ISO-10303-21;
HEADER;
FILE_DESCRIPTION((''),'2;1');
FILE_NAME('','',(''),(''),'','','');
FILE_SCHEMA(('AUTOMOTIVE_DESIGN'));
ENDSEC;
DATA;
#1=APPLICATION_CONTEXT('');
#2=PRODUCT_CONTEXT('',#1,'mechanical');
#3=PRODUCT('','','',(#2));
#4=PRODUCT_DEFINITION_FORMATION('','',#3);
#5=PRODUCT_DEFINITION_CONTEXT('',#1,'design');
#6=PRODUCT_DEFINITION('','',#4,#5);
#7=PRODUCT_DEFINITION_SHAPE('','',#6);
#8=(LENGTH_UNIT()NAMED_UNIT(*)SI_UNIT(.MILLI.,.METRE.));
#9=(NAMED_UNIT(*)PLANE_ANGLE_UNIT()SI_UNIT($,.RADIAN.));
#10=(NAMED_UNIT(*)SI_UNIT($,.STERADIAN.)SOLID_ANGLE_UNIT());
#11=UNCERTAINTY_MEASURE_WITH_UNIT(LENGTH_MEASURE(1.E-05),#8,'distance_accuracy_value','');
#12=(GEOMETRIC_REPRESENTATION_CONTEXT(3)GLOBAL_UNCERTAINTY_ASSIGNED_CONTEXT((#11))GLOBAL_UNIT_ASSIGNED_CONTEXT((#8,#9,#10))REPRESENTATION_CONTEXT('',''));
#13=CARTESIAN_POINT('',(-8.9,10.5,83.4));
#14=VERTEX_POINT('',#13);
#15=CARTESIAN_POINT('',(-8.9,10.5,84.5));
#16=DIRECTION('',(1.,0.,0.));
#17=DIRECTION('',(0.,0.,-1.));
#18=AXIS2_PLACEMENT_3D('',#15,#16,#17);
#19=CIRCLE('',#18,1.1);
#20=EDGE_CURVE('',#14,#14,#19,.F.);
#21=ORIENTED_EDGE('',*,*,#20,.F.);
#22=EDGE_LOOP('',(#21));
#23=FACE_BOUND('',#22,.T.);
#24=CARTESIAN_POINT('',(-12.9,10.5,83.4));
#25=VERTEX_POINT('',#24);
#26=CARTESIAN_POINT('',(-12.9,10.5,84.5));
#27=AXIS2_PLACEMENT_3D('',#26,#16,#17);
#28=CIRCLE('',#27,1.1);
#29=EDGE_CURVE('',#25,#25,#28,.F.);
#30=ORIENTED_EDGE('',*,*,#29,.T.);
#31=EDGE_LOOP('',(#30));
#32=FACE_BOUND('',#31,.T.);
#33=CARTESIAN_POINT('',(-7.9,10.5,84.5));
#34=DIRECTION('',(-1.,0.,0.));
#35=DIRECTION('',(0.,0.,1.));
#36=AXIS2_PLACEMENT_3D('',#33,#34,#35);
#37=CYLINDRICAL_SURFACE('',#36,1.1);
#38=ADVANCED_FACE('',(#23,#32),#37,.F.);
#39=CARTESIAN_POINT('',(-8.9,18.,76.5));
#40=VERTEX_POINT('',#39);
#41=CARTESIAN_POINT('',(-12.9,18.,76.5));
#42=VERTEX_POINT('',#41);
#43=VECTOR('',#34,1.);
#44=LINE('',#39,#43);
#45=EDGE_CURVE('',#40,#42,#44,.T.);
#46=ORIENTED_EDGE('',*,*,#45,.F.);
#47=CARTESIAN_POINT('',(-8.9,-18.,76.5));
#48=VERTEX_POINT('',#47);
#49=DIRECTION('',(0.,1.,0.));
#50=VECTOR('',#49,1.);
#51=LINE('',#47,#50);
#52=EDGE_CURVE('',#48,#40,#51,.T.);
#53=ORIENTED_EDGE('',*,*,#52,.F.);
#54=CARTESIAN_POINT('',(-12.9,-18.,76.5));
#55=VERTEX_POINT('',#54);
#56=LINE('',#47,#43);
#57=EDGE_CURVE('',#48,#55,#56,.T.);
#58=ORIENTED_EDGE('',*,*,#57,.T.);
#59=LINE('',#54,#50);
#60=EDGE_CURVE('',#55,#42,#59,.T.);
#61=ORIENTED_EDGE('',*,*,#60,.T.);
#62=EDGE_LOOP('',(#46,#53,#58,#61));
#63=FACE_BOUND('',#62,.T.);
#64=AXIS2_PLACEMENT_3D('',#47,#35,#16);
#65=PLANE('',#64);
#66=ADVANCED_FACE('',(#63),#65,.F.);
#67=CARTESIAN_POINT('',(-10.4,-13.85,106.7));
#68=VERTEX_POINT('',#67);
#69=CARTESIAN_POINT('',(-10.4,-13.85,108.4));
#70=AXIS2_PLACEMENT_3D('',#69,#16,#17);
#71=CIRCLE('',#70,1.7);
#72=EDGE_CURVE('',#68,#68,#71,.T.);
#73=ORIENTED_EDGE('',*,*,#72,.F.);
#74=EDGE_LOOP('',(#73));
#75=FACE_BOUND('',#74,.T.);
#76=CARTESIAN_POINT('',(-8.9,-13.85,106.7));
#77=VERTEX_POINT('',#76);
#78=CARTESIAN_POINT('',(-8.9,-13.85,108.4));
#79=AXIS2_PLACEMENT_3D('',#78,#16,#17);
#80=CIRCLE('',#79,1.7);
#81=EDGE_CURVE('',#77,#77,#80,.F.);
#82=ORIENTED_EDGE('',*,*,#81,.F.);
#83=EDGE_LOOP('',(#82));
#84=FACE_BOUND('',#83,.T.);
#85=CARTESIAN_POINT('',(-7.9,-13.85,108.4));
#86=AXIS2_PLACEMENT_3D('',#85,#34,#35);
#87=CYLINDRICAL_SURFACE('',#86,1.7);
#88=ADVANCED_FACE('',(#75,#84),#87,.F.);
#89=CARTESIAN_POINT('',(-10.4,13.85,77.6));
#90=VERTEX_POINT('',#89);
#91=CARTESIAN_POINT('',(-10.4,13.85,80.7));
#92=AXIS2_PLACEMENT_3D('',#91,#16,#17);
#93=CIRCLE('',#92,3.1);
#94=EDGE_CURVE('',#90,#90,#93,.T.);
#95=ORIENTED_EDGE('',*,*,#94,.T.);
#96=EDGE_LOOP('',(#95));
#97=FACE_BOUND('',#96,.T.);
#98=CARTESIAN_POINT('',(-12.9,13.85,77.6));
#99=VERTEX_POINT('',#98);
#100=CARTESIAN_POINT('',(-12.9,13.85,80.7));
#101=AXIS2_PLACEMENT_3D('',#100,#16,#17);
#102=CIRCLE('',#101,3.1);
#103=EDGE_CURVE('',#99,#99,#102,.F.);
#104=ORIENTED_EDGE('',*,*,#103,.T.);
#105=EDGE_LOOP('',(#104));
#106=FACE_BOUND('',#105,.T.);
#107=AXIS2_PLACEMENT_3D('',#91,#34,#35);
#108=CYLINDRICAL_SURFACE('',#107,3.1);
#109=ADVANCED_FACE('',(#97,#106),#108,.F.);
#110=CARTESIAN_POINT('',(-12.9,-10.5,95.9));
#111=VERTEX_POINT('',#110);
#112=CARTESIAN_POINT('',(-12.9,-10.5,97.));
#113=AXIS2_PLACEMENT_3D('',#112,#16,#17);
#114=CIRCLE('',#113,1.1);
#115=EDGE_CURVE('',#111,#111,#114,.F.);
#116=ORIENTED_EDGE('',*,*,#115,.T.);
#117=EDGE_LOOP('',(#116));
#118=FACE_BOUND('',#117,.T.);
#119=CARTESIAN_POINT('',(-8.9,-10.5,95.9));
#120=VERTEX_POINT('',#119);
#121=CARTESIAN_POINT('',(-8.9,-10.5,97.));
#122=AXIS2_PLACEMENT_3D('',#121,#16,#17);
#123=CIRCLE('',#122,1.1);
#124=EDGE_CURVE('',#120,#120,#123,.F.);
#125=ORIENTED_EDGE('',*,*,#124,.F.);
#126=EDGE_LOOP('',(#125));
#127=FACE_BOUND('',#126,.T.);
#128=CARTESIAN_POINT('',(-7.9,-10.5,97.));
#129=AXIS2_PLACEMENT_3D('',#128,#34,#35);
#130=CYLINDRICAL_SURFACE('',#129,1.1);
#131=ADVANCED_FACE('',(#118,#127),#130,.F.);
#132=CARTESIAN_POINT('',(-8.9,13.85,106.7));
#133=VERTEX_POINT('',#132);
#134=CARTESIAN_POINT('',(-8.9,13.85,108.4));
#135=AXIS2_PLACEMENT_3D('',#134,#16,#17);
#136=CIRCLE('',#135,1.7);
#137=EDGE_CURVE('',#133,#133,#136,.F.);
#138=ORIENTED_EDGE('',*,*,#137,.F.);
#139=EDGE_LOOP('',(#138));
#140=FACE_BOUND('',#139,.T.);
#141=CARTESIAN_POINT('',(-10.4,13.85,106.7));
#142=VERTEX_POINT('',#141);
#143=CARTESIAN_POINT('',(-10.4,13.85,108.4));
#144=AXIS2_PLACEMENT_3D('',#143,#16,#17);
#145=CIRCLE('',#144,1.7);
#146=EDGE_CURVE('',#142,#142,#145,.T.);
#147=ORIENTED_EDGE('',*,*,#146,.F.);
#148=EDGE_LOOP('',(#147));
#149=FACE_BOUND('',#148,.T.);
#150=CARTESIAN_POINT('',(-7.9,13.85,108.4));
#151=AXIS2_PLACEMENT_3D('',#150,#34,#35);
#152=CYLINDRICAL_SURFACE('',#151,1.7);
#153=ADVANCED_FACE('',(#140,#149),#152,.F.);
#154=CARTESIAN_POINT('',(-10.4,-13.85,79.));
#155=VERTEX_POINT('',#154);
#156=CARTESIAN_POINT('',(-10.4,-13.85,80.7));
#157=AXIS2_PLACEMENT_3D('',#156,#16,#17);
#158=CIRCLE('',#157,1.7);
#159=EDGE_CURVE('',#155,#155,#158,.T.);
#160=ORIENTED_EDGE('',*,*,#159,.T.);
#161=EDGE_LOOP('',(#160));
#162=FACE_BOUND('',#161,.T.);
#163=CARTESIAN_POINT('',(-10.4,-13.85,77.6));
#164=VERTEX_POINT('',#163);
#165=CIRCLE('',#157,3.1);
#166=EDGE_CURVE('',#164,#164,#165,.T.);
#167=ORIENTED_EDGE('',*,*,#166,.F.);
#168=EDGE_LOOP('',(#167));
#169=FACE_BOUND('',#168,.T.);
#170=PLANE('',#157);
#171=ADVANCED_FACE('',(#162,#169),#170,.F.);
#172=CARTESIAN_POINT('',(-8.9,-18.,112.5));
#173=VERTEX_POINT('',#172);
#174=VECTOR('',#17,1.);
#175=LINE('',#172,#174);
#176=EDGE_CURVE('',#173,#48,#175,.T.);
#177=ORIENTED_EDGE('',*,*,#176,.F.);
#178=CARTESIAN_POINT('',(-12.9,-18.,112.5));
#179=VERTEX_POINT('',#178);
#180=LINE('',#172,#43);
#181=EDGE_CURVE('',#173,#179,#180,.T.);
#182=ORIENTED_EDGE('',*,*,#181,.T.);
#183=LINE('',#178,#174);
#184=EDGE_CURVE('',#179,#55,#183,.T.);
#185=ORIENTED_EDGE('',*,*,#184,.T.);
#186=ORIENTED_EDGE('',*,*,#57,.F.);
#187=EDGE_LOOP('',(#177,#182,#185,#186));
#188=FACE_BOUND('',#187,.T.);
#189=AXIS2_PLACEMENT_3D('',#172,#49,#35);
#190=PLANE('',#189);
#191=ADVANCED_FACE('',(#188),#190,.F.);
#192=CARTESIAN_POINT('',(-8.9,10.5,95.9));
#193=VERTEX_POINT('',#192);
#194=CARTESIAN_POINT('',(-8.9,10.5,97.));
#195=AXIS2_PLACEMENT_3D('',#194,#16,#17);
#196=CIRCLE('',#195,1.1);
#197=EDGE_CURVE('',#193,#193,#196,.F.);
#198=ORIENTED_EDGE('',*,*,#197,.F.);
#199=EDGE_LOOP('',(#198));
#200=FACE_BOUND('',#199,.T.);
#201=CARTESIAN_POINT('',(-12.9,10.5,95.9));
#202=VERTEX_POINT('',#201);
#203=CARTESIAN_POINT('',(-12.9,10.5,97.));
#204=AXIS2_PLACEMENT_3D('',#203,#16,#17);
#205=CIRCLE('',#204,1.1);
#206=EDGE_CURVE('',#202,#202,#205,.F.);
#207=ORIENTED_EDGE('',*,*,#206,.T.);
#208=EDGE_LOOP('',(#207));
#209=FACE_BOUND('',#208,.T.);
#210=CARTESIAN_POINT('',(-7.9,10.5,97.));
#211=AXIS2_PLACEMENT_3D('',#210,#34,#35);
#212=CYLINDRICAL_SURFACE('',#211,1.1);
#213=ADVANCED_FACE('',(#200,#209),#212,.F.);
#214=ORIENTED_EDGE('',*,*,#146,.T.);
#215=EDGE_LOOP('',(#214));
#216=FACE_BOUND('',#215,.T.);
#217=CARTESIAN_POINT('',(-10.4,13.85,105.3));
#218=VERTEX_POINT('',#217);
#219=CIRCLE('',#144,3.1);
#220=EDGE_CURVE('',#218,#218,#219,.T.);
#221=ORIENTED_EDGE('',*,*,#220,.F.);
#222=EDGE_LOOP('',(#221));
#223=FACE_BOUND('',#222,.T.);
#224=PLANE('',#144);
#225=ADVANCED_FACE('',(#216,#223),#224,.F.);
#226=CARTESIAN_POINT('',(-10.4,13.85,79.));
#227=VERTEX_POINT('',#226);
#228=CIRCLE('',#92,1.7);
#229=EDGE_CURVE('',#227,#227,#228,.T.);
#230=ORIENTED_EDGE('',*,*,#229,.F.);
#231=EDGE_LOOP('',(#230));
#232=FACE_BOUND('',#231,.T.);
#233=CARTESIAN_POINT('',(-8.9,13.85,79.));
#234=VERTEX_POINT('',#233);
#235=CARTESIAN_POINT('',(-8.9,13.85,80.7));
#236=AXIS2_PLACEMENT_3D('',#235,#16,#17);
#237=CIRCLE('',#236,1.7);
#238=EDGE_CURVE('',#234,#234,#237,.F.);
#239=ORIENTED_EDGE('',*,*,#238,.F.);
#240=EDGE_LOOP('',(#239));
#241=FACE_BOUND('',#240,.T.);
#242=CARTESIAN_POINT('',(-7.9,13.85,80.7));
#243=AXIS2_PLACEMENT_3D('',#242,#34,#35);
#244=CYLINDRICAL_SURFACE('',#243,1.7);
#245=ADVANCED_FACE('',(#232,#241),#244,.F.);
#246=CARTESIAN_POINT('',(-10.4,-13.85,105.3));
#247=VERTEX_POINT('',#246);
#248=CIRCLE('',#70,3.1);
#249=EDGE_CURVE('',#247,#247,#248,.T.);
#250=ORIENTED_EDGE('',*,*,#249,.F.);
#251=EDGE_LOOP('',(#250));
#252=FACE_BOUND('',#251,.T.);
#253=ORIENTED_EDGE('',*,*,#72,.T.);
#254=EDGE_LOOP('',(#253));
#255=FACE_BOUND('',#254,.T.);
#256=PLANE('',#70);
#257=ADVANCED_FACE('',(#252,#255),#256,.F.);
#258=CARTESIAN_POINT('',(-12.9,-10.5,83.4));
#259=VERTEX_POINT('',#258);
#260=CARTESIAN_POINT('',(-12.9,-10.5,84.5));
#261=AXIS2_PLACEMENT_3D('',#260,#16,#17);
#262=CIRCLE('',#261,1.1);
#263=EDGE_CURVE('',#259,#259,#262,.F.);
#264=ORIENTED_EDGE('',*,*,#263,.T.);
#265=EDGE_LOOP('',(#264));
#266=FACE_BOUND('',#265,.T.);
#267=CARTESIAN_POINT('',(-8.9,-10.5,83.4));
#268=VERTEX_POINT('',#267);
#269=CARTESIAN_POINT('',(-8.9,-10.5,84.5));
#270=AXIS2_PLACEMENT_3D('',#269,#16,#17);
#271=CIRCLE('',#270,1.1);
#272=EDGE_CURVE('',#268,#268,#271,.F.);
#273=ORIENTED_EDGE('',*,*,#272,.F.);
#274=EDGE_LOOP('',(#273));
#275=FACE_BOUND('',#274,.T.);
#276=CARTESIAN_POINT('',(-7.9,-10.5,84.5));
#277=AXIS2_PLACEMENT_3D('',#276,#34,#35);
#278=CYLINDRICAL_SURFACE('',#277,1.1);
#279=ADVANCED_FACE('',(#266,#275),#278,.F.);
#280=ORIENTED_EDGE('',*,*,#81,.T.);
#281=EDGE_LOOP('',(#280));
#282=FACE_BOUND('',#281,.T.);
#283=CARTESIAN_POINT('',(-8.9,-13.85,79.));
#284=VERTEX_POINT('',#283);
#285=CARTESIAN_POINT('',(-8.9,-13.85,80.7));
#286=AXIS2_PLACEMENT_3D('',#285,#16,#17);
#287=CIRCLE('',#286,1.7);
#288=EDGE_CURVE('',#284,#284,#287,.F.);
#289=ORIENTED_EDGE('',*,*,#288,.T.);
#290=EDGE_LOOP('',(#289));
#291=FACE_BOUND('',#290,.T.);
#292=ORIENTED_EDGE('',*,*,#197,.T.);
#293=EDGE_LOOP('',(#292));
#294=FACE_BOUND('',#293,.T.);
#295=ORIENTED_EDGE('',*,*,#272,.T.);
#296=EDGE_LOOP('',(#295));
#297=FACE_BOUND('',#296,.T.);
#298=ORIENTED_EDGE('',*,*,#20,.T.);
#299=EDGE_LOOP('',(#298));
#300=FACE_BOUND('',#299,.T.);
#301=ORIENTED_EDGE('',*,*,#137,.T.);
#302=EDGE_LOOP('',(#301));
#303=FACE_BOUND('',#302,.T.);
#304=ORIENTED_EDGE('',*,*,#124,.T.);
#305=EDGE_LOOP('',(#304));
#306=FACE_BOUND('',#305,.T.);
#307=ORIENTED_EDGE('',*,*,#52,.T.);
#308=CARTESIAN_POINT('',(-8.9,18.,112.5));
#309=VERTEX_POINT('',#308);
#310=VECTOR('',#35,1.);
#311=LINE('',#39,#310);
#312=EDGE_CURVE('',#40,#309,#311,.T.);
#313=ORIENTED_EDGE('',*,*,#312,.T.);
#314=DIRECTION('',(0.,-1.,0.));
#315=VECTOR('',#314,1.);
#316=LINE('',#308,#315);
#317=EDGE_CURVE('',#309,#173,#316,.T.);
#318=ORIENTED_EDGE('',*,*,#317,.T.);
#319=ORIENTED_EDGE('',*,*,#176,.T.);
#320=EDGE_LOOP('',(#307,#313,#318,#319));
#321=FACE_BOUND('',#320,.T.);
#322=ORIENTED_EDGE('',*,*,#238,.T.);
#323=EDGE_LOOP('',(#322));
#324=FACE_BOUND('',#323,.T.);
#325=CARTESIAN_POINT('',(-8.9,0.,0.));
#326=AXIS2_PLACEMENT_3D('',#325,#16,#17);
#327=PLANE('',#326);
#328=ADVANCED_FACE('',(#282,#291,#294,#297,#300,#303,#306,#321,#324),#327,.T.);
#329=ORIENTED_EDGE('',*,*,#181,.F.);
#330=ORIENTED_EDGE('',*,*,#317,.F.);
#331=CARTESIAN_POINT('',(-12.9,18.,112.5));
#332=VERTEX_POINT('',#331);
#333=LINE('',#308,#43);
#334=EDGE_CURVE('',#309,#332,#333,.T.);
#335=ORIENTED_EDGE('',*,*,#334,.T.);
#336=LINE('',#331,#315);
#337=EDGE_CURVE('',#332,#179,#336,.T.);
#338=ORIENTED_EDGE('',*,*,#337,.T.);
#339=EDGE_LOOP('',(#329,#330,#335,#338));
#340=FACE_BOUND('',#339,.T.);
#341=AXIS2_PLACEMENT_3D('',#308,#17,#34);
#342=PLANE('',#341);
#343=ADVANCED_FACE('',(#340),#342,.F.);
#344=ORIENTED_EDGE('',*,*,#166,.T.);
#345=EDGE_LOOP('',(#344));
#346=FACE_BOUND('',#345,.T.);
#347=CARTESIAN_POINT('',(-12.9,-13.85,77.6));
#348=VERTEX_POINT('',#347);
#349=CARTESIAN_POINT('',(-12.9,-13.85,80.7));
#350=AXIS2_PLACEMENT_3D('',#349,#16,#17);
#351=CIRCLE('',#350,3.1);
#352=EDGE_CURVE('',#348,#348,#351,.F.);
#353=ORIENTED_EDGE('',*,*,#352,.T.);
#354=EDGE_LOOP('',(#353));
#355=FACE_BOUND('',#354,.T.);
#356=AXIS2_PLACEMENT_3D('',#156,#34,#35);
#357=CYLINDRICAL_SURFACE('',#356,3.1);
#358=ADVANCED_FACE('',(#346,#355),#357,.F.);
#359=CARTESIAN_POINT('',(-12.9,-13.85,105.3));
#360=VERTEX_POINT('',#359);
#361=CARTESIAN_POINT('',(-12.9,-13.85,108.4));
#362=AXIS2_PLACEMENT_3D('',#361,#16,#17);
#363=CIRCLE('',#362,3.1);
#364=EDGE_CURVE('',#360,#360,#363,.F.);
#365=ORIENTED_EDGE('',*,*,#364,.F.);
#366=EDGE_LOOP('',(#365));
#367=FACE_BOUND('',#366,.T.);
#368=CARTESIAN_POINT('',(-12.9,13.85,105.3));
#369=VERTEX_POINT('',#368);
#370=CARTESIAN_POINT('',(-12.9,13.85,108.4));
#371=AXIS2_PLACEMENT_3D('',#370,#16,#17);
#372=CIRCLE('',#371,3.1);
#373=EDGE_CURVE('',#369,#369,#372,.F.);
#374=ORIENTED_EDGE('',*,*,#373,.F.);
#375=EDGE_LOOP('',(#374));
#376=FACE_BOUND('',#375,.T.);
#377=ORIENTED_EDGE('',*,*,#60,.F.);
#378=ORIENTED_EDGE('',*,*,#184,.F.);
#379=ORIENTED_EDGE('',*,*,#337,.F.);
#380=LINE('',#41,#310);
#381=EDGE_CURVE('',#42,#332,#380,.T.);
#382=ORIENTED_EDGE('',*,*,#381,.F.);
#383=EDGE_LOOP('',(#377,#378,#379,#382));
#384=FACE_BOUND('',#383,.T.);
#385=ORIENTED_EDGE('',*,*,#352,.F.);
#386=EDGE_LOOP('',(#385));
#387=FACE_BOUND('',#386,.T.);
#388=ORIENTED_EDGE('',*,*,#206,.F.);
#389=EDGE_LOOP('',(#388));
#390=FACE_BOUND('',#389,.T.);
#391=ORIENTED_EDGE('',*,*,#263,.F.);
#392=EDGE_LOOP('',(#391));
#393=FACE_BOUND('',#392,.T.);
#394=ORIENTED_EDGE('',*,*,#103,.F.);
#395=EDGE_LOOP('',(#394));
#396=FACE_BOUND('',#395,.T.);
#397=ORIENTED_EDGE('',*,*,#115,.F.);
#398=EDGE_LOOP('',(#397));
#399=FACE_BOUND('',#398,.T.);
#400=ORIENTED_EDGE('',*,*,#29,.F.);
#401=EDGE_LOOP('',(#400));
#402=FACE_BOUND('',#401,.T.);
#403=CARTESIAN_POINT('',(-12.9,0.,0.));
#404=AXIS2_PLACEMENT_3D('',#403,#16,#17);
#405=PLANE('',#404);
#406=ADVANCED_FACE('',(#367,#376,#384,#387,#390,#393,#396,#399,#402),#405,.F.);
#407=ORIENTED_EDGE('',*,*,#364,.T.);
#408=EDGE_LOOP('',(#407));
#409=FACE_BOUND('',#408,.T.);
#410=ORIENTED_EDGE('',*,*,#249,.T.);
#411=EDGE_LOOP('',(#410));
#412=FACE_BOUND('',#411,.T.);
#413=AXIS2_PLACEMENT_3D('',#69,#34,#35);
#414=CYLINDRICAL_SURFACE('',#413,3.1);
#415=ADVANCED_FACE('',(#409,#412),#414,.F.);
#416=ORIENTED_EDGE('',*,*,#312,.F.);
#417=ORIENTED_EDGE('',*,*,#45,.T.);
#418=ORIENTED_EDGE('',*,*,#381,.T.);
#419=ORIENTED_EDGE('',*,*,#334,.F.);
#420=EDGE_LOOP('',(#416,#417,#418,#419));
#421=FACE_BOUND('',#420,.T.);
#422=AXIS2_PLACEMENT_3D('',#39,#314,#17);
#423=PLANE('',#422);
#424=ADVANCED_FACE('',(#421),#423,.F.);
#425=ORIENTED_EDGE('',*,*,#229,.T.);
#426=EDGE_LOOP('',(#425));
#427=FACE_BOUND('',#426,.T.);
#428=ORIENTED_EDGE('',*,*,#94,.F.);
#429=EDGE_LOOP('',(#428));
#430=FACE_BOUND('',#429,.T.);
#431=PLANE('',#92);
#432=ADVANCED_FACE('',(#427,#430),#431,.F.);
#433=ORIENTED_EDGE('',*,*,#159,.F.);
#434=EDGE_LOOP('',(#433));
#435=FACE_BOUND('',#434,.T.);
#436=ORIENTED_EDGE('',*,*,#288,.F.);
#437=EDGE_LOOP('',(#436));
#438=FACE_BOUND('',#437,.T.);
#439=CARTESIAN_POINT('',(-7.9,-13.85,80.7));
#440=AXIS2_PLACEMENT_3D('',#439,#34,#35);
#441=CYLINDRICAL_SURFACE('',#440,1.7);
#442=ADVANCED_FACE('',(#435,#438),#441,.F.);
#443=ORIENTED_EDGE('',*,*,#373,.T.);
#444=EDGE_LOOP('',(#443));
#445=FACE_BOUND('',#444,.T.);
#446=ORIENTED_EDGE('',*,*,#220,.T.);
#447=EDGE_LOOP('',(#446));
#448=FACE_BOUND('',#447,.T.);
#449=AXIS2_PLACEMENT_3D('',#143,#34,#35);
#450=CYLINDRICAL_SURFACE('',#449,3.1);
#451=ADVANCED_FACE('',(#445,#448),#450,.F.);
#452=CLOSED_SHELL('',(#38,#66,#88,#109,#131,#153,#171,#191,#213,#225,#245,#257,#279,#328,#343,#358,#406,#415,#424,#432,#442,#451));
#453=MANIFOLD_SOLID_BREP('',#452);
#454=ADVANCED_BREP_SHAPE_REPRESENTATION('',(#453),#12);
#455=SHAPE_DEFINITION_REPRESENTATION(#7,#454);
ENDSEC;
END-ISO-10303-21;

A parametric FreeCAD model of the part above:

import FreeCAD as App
import Part
import Sketcher
from FreeCAD import Vector
Q = App.Units.Quantity


def add_polygon(sketch, points):
    """Adds a closed chain of lines whose ends are joined by coincident constraints."""
    first, n = sketch.GeometryCount, len(points)
    for a, b in zip(points, points[1:] + points[:1]):
        sketch.addGeometry(Part.LineSegment(App.Vector(*a, 0), App.Vector(*b, 0)), False)
    for i in range(n):
        sketch.addConstraint(Sketcher.Constraint("Coincident", first + i, 2, first + (i + 1) % n, 1))

doc = App.newDocument("Part")
body = doc.addObject("PartDesign::Body", "Body")

sketch1 = body.newObject("Sketcher::SketchObject", "Sketch")
sketch1.AttachmentSupport = (doc.getObject("YZ_Plane"), [""])
sketch1.MapMode = "FlatFace"
sketch1.AttachmentOffset = App.Placement(Vector(0, 0, -12.9), App.Rotation())
add_polygon(sketch1, [(18, 112), (-18, 112), (-18, 76), (18, 76)])
sketch1.addConstraint([
    Sketcher.Constraint("Horizontal", 0),
    Sketcher.Constraint("Vertical", 1),
    Sketcher.Constraint("Horizontal", 2),
    Sketcher.Constraint("Vertical", 3),
    Sketcher.Constraint("Equal", 2, 1),
    Sketcher.Constraint("DistanceX", 0, 2, 0, 1, Q("36 mm")),
    Sketcher.Constraint("DistanceX", 0, 2, -1, 1, Q("18 mm")),
    Sketcher.Constraint("DistanceY", -1, 1, 0, 2, Q("112.5 mm")),
])
pad1 = body.newObject("PartDesign::Pad", "Pad")
pad1.Profile = sketch1
pad1.Length = 4

sketch2 = body.newObject("Sketcher::SketchObject", "Sketch001")
sketch2.AttachmentSupport = (doc.getObject("YZ_Plane"), [""])
sketch2.MapMode = "FlatFace"
sketch2.AttachmentOffset = App.Placement(Vector(0, 0, -13.9), App.Rotation())
sketch2.addGeometry([
    Part.Circle(Vector(-13.8, 80.7, 0), Vector(0, 0, 1), 1.7),
    Part.Circle(Vector(-13.8, 108.4, 0), Vector(0, 0, 1), 1.7),
    Part.Circle(Vector(13.8, 80.7, 0), Vector(0, 0, 1), 1.7),
    Part.Circle(Vector(13.8, 108.4, 0), Vector(0, 0, 1), 1.7),
], False)
sketch2.addConstraint([
    Sketcher.Constraint("Equal", 0, 1),
    Sketcher.Constraint("Equal", 1, 2),
    Sketcher.Constraint("Equal", 2, 3),
    Sketcher.Constraint("Symmetric", 0, 3, 2, 3, -2),
    Sketcher.Constraint("Symmetric", 1, 3, 3, 3, -2),
    Sketcher.Constraint("Vertical", 0, 3, 1, 3),
    Sketcher.Constraint("Diameter", 0, Q("3.4 mm")),
    Sketcher.Constraint("DistanceY", -1, 1, 0, 3, Q("80.7 mm")),
    Sketcher.Constraint("DistanceY", -1, 1, 1, 3, Q("108.4 mm")),
    Sketcher.Constraint("DistanceX", 0, 3, 2, 3, Q("27.7 mm")),
])
pocket1 = body.newObject("PartDesign::Pocket", "Pocket")
pocket1.Profile = sketch2
pocket1.Length = 6
pocket1.Reversed = True

sketch3 = body.newObject("Sketcher::SketchObject", "Sketch002")
sketch3.AttachmentSupport = (doc.getObject("YZ_Plane"), [""])
sketch3.MapMode = "FlatFace"
sketch3.AttachmentOffset = App.Placement(Vector(0, 0, -13.9), App.Rotation())
sketch3.addGeometry([
    Part.Circle(Vector(-13.8, 80.7, 0), Vector(0, 0, 1), 3.1),
    Part.Circle(Vector(-13.8, 108.4, 0), Vector(0, 0, 1), 3.1),
    Part.Circle(Vector(13.8, 80.7, 0), Vector(0, 0, 1), 3.1),
    Part.Circle(Vector(13.8, 108.4, 0), Vector(0, 0, 1), 3.1),
], False)
sketch3.addConstraint([
    Sketcher.Constraint("Equal", 0, 1),
    Sketcher.Constraint("Equal", 1, 2),
    Sketcher.Constraint("Equal", 2, 3),
    Sketcher.Constraint("Symmetric", 0, 3, 2, 3, -2),
    Sketcher.Constraint("Symmetric", 1, 3, 3, 3, -2),
    Sketcher.Constraint("Vertical", 0, 3, 1, 3),
    Sketcher.Constraint("Diameter", 0, Q("6.2 mm")),
    Sketcher.Constraint("DistanceY", -1, 1, 0, 3, Q("80.7 mm")),
    Sketcher.Constraint("DistanceY", -1, 1, 1, 3, Q("108.4 mm")),
    Sketcher.Constraint("DistanceX", 0, 3, 2, 3, Q("27.7 mm")),
])
pocket2 = body.newObject("PartDesign::Pocket", "Pocket001")
pocket2.Profile = sketch3
pocket2.Length = 3.5
pocket2.Reversed = True

sketch4 = body.newObject("Sketcher::SketchObject", "Sketch003")
sketch4.AttachmentSupport = (doc.getObject("YZ_Plane"), [""])
sketch4.MapMode = "FlatFace"
sketch4.AttachmentOffset = App.Placement(Vector(0, 0, -13.9), App.Rotation())
sketch4.addGeometry([
    Part.Circle(Vector(-10.5, 97, 0), Vector(0, 0, 1), 1.1),
    Part.Circle(Vector(-10.5, 84.5, 0), Vector(0, 0, 1), 1.1),
    Part.Circle(Vector(10.5, 97, 0), Vector(0, 0, 1), 1.1),
    Part.Circle(Vector(10.5, 84.5, 0), Vector(0, 0, 1), 1.1),
], False)
sketch4.addConstraint([
    Sketcher.Constraint("Equal", 0, 1),
    Sketcher.Constraint("Equal", 1, 2),
    Sketcher.Constraint("Equal", 2, 3),
    Sketcher.Constraint("Symmetric", 0, 3, 2, 3, -2),
    Sketcher.Constraint("Symmetric", 1, 3, 3, 3, -2),
    Sketcher.Constraint("Vertical", 0, 3, 1, 3),
    Sketcher.Constraint("Diameter", 0, Q("2.2 mm")),
    Sketcher.Constraint("DistanceY", -1, 1, 0, 3, Q("97 mm")),
    Sketcher.Constraint("DistanceX", 0, 3, 2, 3, Q("21 mm")),
    Sketcher.Constraint("DistanceY", -1, 1, 1, 3, Q("84.5 mm")),
])
pocket3 = body.newObject("PartDesign::Pocket", "Pocket002")
pocket3.Profile = sketch4
pocket3.Length = 6
pocket3.Reversed = True

doc.recompute()
